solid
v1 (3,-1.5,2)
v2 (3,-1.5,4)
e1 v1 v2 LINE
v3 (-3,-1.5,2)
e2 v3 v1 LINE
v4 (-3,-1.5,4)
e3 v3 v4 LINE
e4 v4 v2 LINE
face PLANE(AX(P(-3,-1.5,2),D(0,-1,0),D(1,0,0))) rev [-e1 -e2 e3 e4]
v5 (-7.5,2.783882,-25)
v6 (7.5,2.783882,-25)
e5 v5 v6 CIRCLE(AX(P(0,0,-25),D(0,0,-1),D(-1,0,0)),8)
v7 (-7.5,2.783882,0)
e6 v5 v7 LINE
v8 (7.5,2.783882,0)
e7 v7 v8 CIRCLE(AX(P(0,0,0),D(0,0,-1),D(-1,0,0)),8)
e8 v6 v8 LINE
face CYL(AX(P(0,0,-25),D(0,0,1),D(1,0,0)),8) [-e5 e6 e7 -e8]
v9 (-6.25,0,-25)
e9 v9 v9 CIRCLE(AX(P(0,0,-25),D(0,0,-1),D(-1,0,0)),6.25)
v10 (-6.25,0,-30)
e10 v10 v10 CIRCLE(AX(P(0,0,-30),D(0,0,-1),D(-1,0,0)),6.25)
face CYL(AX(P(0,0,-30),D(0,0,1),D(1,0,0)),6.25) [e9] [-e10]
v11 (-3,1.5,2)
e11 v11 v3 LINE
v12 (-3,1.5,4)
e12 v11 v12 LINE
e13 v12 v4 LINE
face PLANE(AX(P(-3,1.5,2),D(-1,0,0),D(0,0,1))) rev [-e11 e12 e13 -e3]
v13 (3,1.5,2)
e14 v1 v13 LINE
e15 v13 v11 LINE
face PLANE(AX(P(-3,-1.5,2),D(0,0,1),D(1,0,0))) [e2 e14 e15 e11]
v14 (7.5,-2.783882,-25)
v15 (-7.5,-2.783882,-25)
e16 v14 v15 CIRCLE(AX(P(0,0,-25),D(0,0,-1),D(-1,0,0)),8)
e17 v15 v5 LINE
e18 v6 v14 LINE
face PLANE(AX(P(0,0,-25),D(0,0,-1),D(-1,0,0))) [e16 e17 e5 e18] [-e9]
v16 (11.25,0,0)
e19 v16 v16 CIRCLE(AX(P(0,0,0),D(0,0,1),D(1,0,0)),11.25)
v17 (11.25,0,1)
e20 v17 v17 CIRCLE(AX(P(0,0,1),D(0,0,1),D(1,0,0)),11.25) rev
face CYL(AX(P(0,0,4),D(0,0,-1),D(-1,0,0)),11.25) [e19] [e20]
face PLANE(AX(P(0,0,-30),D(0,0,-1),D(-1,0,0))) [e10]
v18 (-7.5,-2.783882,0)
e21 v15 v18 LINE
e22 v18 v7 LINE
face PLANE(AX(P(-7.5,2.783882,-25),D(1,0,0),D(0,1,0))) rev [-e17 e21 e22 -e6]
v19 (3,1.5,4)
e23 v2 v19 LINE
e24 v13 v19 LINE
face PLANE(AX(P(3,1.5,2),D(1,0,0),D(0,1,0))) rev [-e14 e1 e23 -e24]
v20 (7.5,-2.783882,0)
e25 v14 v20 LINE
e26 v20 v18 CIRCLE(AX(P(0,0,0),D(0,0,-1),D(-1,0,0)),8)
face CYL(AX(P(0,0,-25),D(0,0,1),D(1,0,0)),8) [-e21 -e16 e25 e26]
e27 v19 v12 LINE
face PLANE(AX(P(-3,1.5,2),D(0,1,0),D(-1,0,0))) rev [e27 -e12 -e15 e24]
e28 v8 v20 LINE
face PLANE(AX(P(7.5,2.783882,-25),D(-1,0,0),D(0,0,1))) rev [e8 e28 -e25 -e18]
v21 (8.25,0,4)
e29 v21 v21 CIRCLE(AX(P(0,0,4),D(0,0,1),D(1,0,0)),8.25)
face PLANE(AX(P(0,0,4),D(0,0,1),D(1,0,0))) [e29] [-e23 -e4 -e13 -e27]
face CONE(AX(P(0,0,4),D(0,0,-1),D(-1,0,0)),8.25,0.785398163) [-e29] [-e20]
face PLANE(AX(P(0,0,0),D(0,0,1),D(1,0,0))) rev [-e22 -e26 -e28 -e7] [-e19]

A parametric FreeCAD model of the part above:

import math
import FreeCAD as App
import Part
import Sketcher
from FreeCAD import Vector
Q = App.Units.Quantity


def edges_at(feature, points):
    """Names of the edges that pass closest to the given points."""
    edges = feature.Shape.Edges
    near = lambda p: min(range(len(edges)), key=lambda i: edges[i].distToShape(Part.Vertex(*p))[0])
    return sorted({f"Edge{near(p) + 1}" for p in points})


def add_polygon(sketch, points):
    """Adds a closed chain of lines whose ends are joined by coincident constraints."""
    first, n = sketch.GeometryCount, len(points)
    for a, b in zip(points, points[1:] + points[:1]):
        sketch.addGeometry(Part.LineSegment(App.Vector(*a, 0), App.Vector(*b, 0)), False)
    for i in range(n):
        sketch.addConstraint(Sketcher.Constraint("Coincident", first + i, 2, first + (i + 1) % n, 1))

doc = App.newDocument("Part")
body = doc.addObject("PartDesign::Body", "Body")

# Sketch on XY plane
sketch1 = body.newObject("Sketcher::SketchObject", "Sketch")
sketch1.AttachmentSupport = (doc.getObject("XY_Plane"), [""])
sketch1.MapMode = "FlatFace"
sketch1.addGeometry(Part.Circle(Vector(0, 0, 0), Vector(0, 0, 1), 11.25), False)
sketch1.addConstraint([
    Sketcher.Constraint("Coincident", 0, 3, -1, 1),
    Sketcher.Constraint("Diameter", 0, Q("22.5 mm")),
])
pad1 = body.newObject("PartDesign::Pad", "Pad")
pad1.Profile = sketch1
pad1.Length = 4
doc.recompute()

chamfer = body.newObject("PartDesign::Chamfer", "Chamfer")
chamfer.Base = (pad1, edges_at(pad1, [(-11.25, 0, 4)]))
chamfer.Size = 3

# Sketch on XY plane
sketch2 = body.newObject("Sketcher::SketchObject", "Sketch001")
sketch2.AttachmentSupport = (doc.getObject("XY_Plane"), [""])
sketch2.MapMode = "FlatFace"
sketch2.AttachmentOffset = App.Placement(Vector(0, 0, 4), App.Rotation())
add_polygon(sketch2, [(-3, 1.5), (-3, -1.5), (3, -1.5), (3, 1.5)])  # lines 0-3
sketch2.addConstraint([
    Sketcher.Constraint("Vertical", 0),
    Sketcher.Constraint("Horizontal", 1),
    Sketcher.Constraint("Vertical", 2),
    Sketcher.Constraint("Horizontal", 3),
    Sketcher.Constraint("Symmetric", 0, 2, 2, 2, -1, 1),
    Sketcher.Constraint("DistanceX", 1, 1, 1, 2, Q("6 mm")),
    Sketcher.Constraint("DistanceY", 0, 2, 0, 1, Q("3 mm")),
])
pocket1 = body.newObject("PartDesign::Pocket", "Pocket")
pocket1.Profile = sketch2
pocket1.Length = 2

# Sketch on XY plane
sketch3 = body.newObject("Sketcher::SketchObject", "Sketch002")
sketch3.AttachmentSupport = (doc.getObject("XY_Plane"), [""])
sketch3.MapMode = "FlatFace"
sketch3.addGeometry([
    Part.LineSegment(Vector(7.5, 2.783882, 0), Vector(7.5, -2.783882, 0)),
    Part.ArcOfCircle(Part.Circle(Vector(0, 0, 0), Vector(0, 0, 1), 8), math.radians(-159.635865), math.radians(-20.364135)),
    Part.LineSegment(Vector(-7.5, -2.783882, 0), Vector(-7.5, 2.783882, 0)),
    Part.ArcOfCircle(Part.Circle(Vector(0, 0, 0), Vector(0, 0, 1), 8), math.radians(20.364135), math.radians(159.635865)),
], False)
sketch3.addConstraint([
    Sketcher.Constraint("Coincident", 0, 2, 1, 2),
    Sketcher.Constraint("Coincident", 1, 1, 2, 1),
    Sketcher.Constraint("Coincident", 2, 2, 3, 2),
    Sketcher.Constraint("Coincident", 3, 1, 0, 1),
    Sketcher.Constraint("Vertical", 0),
    Sketcher.Constraint("Vertical", 2),
    Sketcher.Constraint("Coincident", 1, 3, -1, 1),
    Sketcher.Constraint("Coincident", 3, 3, -1, 1),
    Sketcher.Constraint("Equal", 1, 3),
    Sketcher.Constraint("Horizontal", 0, 2, 1, 1),
    Sketcher.Constraint("Radius", 1, Q("8 mm")),
    Sketcher.Constraint("DistanceX", 1, 1, 0, 2, Q("15 mm")),
])
pad2 = body.newObject("PartDesign::Pad", "Pad001")
pad2.Profile = sketch3
pad2.Length = 25
pad2.Reversed = True

# Sketch on XY plane
sketch4 = body.newObject("Sketcher::SketchObject", "Sketch003")
sketch4.AttachmentSupport = (doc.getObject("XY_Plane"), [""])
sketch4.MapMode = "FlatFace"
sketch4.AttachmentOffset = App.Placement(Vector(0, 0, -25), App.Rotation())
sketch4.addGeometry(Part.Circle(Vector(0, 0, 0), Vector(0, 0, 1), 6.25), False)
sketch4.addConstraint([
    Sketcher.Constraint("Coincident", 0, 3, -1, 1),
    Sketcher.Constraint("Diameter", 0, Q("12.5 mm")),
])
pad3 = body.newObject("PartDesign::Pad", "Pad002")
pad3.Profile = sketch4
pad3.Length = 5
pad3.Reversed = True

doc.recompute()
